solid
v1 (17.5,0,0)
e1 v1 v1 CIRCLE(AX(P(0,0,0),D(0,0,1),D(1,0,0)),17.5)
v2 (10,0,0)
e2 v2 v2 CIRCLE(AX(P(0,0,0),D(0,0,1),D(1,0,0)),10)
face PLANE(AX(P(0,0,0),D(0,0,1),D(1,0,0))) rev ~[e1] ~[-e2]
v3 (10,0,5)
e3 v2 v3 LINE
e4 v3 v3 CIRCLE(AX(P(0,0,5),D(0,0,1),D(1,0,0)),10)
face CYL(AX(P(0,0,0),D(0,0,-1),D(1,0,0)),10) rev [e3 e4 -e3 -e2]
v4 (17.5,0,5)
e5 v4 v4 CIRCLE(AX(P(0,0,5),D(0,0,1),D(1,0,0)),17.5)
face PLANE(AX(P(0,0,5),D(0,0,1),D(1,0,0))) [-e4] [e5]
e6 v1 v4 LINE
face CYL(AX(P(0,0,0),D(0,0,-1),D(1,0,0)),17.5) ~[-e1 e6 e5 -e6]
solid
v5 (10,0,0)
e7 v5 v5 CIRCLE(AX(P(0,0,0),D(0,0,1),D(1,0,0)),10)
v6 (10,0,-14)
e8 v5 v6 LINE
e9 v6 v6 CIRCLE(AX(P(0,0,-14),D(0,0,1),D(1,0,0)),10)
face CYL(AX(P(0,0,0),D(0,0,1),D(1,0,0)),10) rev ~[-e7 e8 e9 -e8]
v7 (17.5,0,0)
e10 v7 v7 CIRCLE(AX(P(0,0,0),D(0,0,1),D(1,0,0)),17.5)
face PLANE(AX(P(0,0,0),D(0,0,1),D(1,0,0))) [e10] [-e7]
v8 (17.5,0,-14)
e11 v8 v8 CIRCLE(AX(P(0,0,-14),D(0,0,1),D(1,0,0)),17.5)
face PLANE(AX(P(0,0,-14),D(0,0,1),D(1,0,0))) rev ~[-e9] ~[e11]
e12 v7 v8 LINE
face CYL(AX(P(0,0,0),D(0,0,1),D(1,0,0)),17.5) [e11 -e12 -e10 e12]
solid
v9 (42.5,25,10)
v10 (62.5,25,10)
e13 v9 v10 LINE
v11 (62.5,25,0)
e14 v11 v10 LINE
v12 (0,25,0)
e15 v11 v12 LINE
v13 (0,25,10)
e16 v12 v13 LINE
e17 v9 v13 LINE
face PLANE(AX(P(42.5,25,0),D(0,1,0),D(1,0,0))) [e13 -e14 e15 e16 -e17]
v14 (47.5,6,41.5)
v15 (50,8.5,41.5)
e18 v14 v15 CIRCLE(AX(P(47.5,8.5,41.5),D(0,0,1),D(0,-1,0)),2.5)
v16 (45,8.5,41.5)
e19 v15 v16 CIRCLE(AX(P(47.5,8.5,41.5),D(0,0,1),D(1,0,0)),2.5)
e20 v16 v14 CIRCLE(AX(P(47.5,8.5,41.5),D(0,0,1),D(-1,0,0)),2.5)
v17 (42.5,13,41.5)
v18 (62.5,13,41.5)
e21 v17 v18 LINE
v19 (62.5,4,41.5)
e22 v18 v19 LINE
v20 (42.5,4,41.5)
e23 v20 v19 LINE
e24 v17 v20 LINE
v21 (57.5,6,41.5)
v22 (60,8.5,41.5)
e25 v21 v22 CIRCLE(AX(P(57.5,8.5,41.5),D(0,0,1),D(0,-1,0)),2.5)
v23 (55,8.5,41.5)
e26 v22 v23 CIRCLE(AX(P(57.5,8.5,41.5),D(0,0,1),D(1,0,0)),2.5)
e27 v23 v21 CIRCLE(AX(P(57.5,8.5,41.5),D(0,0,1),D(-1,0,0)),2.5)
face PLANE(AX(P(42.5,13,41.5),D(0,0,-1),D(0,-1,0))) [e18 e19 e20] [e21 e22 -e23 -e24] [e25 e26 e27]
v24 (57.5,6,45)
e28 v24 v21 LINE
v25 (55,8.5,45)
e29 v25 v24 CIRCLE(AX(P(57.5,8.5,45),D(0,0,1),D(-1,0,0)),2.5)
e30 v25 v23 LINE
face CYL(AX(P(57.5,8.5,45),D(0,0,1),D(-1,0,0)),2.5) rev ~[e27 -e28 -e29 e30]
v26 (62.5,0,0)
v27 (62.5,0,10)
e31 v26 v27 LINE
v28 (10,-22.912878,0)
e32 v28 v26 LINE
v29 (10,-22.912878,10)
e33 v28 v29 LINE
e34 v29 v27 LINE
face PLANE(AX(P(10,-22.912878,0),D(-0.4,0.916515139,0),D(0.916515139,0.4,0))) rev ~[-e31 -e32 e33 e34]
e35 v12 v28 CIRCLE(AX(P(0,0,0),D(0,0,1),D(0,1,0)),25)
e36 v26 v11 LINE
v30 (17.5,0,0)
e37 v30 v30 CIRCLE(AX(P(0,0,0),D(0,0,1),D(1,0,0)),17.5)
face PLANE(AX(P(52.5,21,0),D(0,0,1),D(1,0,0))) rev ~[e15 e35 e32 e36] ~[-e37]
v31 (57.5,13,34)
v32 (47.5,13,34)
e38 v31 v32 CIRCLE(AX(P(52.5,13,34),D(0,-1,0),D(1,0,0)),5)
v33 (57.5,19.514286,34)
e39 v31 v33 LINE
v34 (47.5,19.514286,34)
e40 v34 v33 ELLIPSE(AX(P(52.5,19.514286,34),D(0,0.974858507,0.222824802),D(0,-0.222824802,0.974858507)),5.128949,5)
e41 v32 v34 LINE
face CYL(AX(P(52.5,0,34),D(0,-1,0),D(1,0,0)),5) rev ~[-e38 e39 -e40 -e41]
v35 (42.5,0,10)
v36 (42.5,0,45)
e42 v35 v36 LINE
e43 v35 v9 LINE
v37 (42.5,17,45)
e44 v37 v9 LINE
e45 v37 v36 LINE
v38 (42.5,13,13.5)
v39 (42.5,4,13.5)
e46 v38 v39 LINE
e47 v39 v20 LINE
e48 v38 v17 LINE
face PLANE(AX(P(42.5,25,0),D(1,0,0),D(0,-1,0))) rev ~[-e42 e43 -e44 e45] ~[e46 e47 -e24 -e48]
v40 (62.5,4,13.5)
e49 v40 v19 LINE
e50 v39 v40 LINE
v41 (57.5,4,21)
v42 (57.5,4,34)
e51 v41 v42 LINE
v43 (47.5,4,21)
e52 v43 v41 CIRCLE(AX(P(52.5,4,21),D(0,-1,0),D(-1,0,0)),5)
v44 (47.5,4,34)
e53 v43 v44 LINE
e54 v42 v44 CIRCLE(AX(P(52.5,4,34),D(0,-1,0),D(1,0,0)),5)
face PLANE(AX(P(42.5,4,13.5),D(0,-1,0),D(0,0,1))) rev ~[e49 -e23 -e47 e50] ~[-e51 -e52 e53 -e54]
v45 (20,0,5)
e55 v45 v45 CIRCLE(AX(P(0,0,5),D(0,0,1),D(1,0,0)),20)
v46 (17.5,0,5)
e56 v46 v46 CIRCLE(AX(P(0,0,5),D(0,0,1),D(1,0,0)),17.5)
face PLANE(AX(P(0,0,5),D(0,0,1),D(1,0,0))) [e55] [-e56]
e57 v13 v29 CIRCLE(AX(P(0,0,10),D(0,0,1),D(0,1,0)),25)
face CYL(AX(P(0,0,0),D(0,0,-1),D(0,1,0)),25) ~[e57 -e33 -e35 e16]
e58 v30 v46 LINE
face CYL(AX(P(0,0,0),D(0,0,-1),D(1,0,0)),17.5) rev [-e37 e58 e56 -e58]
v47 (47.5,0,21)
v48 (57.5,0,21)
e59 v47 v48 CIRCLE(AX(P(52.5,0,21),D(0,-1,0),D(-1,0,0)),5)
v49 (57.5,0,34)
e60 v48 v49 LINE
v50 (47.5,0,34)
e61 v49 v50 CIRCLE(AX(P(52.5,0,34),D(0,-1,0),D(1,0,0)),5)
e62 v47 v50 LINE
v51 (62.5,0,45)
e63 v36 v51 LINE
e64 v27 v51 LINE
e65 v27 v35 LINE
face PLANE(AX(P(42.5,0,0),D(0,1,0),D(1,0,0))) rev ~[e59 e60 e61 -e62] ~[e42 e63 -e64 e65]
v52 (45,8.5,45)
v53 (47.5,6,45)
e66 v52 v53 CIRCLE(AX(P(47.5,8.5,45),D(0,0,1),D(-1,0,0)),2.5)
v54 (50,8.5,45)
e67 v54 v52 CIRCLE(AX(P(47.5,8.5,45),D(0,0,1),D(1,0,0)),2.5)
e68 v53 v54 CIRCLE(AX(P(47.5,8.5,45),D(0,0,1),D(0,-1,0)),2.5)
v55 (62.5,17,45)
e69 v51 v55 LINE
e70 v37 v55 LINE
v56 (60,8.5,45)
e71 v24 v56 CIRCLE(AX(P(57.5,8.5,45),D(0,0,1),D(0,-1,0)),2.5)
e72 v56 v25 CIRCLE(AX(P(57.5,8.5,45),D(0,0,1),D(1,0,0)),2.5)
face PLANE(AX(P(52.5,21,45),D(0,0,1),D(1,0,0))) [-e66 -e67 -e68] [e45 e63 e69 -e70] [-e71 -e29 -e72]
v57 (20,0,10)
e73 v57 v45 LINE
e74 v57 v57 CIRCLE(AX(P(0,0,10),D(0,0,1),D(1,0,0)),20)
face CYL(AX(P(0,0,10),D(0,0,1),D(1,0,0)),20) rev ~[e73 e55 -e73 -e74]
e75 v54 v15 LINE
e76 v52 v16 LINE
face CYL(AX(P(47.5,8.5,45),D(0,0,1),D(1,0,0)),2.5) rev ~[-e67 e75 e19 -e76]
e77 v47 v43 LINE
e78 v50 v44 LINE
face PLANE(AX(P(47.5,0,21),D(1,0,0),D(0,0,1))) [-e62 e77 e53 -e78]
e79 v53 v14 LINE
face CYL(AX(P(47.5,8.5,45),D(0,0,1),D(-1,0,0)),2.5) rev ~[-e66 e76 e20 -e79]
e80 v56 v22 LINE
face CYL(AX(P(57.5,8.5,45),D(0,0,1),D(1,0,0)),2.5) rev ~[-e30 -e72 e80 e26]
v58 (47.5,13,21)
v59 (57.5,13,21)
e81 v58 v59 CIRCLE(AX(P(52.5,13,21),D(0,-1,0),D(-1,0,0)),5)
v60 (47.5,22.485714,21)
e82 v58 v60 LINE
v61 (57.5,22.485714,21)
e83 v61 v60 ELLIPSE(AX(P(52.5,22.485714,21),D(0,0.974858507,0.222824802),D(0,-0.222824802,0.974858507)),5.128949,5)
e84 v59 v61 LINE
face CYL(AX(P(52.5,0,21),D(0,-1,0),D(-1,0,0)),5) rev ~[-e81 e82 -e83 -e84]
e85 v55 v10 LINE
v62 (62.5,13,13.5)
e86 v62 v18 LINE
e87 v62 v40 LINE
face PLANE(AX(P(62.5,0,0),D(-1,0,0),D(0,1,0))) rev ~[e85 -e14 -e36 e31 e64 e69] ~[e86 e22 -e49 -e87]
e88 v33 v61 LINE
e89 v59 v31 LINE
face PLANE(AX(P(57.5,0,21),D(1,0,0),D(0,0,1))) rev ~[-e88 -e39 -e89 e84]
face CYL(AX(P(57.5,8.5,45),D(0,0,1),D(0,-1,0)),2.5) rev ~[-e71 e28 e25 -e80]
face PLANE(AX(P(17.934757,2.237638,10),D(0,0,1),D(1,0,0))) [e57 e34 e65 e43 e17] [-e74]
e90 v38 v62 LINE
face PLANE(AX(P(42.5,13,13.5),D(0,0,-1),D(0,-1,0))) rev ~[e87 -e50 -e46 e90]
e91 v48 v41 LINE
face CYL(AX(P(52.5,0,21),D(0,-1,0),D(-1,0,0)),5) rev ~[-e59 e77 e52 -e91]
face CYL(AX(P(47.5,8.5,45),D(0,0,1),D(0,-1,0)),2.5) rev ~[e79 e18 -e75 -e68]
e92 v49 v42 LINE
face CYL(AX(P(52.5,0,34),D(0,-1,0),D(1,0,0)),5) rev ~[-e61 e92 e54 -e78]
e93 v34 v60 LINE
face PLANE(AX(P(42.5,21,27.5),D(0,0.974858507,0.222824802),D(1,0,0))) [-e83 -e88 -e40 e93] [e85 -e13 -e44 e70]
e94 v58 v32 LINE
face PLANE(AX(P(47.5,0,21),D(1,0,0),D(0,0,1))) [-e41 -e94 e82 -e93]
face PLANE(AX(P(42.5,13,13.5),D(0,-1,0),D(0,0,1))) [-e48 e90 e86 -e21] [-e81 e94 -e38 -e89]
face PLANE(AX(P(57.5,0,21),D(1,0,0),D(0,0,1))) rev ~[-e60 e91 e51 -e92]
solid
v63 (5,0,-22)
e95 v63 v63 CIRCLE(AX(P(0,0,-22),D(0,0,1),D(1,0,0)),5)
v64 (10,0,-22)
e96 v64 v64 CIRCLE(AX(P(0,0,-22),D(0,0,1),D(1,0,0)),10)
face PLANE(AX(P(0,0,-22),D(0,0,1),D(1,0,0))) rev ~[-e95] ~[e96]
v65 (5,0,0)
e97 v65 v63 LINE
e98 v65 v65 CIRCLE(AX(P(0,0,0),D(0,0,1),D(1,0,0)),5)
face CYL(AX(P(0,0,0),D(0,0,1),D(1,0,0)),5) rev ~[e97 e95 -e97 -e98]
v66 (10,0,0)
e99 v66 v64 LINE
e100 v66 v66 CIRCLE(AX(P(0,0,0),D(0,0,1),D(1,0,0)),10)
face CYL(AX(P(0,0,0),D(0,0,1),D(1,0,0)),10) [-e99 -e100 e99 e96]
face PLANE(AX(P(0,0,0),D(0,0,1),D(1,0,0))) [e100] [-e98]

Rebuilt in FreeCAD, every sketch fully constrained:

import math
import FreeCAD as App
import Part
import Sketcher
Q = App.Units.Quantity


def edges_at(feature, points):
    """Names of the edges that pass closest to the given points."""
    edges = feature.Shape.Edges
    near = lambda p: min(range(len(edges)), key=lambda i: edges[i].distToShape(Part.Vertex(*p))[0])
    return sorted({f"Edge{near(p) + 1}" for p in points})


def add_polygon(sketch, points):
    """Adds a closed chain of lines whose ends are joined by coincident constraints."""
    first, n = sketch.GeometryCount, len(points)
    for a, b in zip(points, points[1:] + points[:1]):
        sketch.addGeometry(Part.LineSegment(App.Vector(*a, 0), App.Vector(*b, 0)), False)
    for i in range(n):
        sketch.addConstraint(Sketcher.Constraint("Coincident", first + i, 2, first + (i + 1) % n, 1))

doc = App.newDocument("Part")
body = doc.addObject("PartDesign::Body", "Body")

sketch1 = body.newObject("Sketcher::SketchObject", "Sketch")
sketch1.AttachmentSupport = (doc.getObject("XY_Plane"), [""])
sketch1.MapMode = "FlatFace"
sketch1.addGeometry([
    Part.LineSegment(App.Vector(42, 25, 0), App.Vector(0, 25, 0)),
    Part.ArcOfCircle(Part.Circle(App.Vector(0, 0, 0), App.Vector(0, 0, 1), 25), math.radians(90), math.radians(294)),
    Part.LineSegment(App.Vector(10, -23, 0), App.Vector(62, 0, 0)),
    Part.LineSegment(App.Vector(62, 0, 0), App.Vector(42, 0, 0)),
    Part.LineSegment(App.Vector(42, 0, 0), App.Vector(42, 25, 0)),
    Part.Circle(App.Vector(0, 0, 0), App.Vector(0, 0, 1), 18),
], False)
sketch1.addConstraint([
    Sketcher.Constraint("Tangent", 0, 2, 1, 1),
    Sketcher.Constraint("Tangent", 1, 2, 2, 1),
    Sketcher.Constraint("Coincident", 2, 2, 3, 1),
    Sketcher.Constraint("Coincident", 3, 2, 4, 1),
    Sketcher.Constraint("Coincident", 4, 2, 0, 1),
    Sketcher.Constraint("Horizontal", 0),
    Sketcher.Constraint("Horizontal", 3),
    Sketcher.Constraint("Vertical", 4),
    Sketcher.Constraint("Coincident", 1, 3, -1, 1),
    Sketcher.Constraint("Coincident", 5, 3, -1, 1),
    Sketcher.Constraint("PointOnObject", 2, 2, -1),
    Sketcher.Constraint("Diameter", 5, Q("35 mm")),
    Sketcher.Constraint("Radius", 1, Q("25 mm")),
    Sketcher.Constraint("DistanceX", 3, 2, 3, 1, Q("20 mm")),
    Sketcher.Constraint("DistanceX", 0, 2, 0, 1, Q("42.5 mm")),
])
pad1 = body.newObject("PartDesign::Pad", "Pad")
pad1.Profile = sketch1
pad1.Length = 10

sketch2 = body.newObject("Sketcher::SketchObject", "Sketch001")
sketch2.AttachmentSupport = (doc.getObject("XY_Plane"), [""])
sketch2.MapMode = "FlatFace"
add_polygon(sketch2, [(42, 25), (42, 0), (62, 0), (62, 25)])
sketch2.addConstraint([
    Sketcher.Constraint("Vertical", 0),
    Sketcher.Constraint("Horizontal", 1),
    Sketcher.Constraint("Vertical", 2),
    Sketcher.Constraint("Horizontal", 3),
    Sketcher.Constraint("PointOnObject", 0, 2, -1),
    Sketcher.Constraint("DistanceX", 1, 1, 1, 2, Q("20 mm")),
    Sketcher.Constraint("DistanceY", 0, 2, 0, 1, Q("25 mm")),
    Sketcher.Constraint("DistanceX", -1, 1, 0, 2, Q("42.5 mm")),
])
pad2 = body.newObject("PartDesign::Pad", "Pad001")
pad2.Profile = sketch2
pad2.Length = 45
doc.recompute()

chamfer = body.newObject("PartDesign::Chamfer", "Chamfer")
chamfer.Base = (pad2, edges_at(pad2, [(52.5, 25, 45)]))
chamfer.ChamferType = "Two distances"
chamfer.Size = 8
chamfer.Size2 = 35

sketch3 = body.newObject("Sketcher::SketchObject", "Sketch002")
sketch3.AttachmentSupport = (doc.getObject("YZ_Plane"), [""])
sketch3.MapMode = "FlatFace"
sketch3.AttachmentOffset = App.Placement(App.Vector(0, 0, 42.5), App.Rotation())
add_polygon(sketch3, [(13, 42), (13, 14), (4, 14), (4, 42)])
sketch3.addConstraint([
    Sketcher.Constraint("Vertical", 0),
    Sketcher.Constraint("Horizontal", 1),
    Sketcher.Constraint("Vertical", 2),
    Sketcher.Constraint("Horizontal", 3),
    Sketcher.Constraint("DistanceX", 1, 2, 1, 1, Q("9 mm")),
    Sketcher.Constraint("DistanceY", 0, 2, 0, 1, Q("28 mm")),
    Sketcher.Constraint("DistanceX", -1, 1, 0, 2, Q("13 mm")),
    Sketcher.Constraint("DistanceY", -1, 1, 0, 2, Q("13.5 mm")),
])
pocket1 = body.newObject("PartDesign::Pocket", "Pocket")
pocket1.Profile = sketch3
pocket1.Length = 30
pocket1.Reversed = True

sketch4 = body.newObject("Sketcher::SketchObject", "Sketch003")
sketch4.AttachmentSupport = (doc.getObject("XZ_Plane"), [""])
sketch4.MapMode = "FlatFace"
sketch4.addGeometry([
    Part.ArcOfCircle(Part.Circle(App.Vector(52, 34, 0), App.Vector(0, 0, 1), 5), math.radians(0), math.radians(180)),
    Part.LineSegment(App.Vector(48, 34, 0), App.Vector(48, 21, 0)),
    Part.ArcOfCircle(Part.Circle(App.Vector(52, 21, 0), App.Vector(0, 0, 1), 5), math.radians(180), math.radians(360)),
    Part.LineSegment(App.Vector(58, 21, 0), App.Vector(58, 34, 0)),
], False)
sketch4.addConstraint([
    Sketcher.Constraint("Tangent", 0, 2, 1, 1),
    Sketcher.Constraint("Tangent", 1, 2, 2, 1),
    Sketcher.Constraint("Tangent", 2, 2, 3, 1),
    Sketcher.Constraint("Tangent", 3, 2, 0, 1),
    Sketcher.Constraint("Vertical", 1),
    Sketcher.Constraint("Vertical", 3),
    Sketcher.Constraint("Radius", 0, Q("5 mm")),
    Sketcher.Constraint("DistanceY", 1, 2, 1, 1, Q("13 mm")),
    Sketcher.Constraint("DistanceY", -1, 1, 0, 3, Q("34 mm")),
    Sketcher.Constraint("DistanceX", -1, 1, 0, 3, Q("52.5 mm")),
])
pocket2 = body.newObject("PartDesign::Pocket", "Pocket001")
pocket2.Profile = sketch4
pocket2.Length = 26

sketch5 = body.newObject("Sketcher::SketchObject", "Sketch004")
sketch5.AttachmentSupport = (doc.getObject("XY_Plane"), [""])
sketch5.MapMode = "FlatFace"
sketch5.AttachmentOffset = App.Placement(App.Vector(0, 0, 45), App.Rotation())
sketch5.addGeometry([
    Part.ArcOfCircle(Part.Circle(App.Vector(47.5, 8.5, 0), App.Vector(0, 0, 1), 2.5), math.radians(0), math.radians(180)),
    Part.ArcOfCircle(Part.Circle(App.Vector(47.5, 8.5, 0), App.Vector(0, 0, 1), 2.5), math.radians(180), math.radians(270)),
    Part.ArcOfCircle(Part.Circle(App.Vector(47.5, 8.5, 0), App.Vector(0, 0, 1), 2.5), math.radians(-90), math.radians(0)),
    Part.ArcOfCircle(Part.Circle(App.Vector(57.5, 8.5, 0), App.Vector(0, 0, 1), 2.5), math.radians(0), math.radians(180)),
    Part.ArcOfCircle(Part.Circle(App.Vector(57.5, 8.5, 0), App.Vector(0, 0, 1), 2.5), math.radians(180), math.radians(270)),
    Part.ArcOfCircle(Part.Circle(App.Vector(57.5, 8.5, 0), App.Vector(0, 0, 1), 2.5), math.radians(-90), math.radians(0)),
], False)
sketch5.addConstraint([
    Sketcher.Constraint("Tangent", 0, 2, 1, 1),
    Sketcher.Constraint("Tangent", 1, 2, 2, 1),
    Sketcher.Constraint("Tangent", 2, 2, 0, 1),
    Sketcher.Constraint("Tangent", 3, 2, 4, 1),
    Sketcher.Constraint("Tangent", 4, 2, 5, 1),
    Sketcher.Constraint("Tangent", 5, 2, 3, 1),
    Sketcher.Constraint("Equal", 2, 3),
    Sketcher.Constraint("Horizontal", 2, 3, 3, 3),
    Sketcher.Constraint("Horizontal", 5, 3, 0, 2),
    Sketcher.Constraint("Horizontal", 0, 2, 2, 2),
    Sketcher.Constraint("Horizontal", 2, 2, 3, 2),
    Sketcher.Constraint("Horizontal", 3, 2, 5, 2),
    Sketcher.Constraint("Vertical", 2, 3, 1, 2),
    Sketcher.Constraint("Vertical", 5, 3, 4, 2),
    Sketcher.Constraint("Radius", 0, Q("2.5 mm")),
    Sketcher.Constraint("DistanceX", -1, 1, 0, 2, Q("45 mm")),
    Sketcher.Constraint("DistanceY", -1, 1, 1, 2, Q("6 mm")),
    Sketcher.Constraint("DistanceX", -1, 1, 3, 2, Q("55 mm")),
])
pocket3 = body.newObject("PartDesign::Pocket", "Pocket002")
pocket3.Profile = sketch5
pocket3.Length = 25

sketch6 = body.newObject("Sketcher::SketchObject", "Sketch005")
sketch6.AttachmentSupport = (doc.getObject("XY_Plane"), [""])
sketch6.MapMode = "FlatFace"
sketch6.AttachmentOffset = App.Placement(App.Vector(0, 0, 10), App.Rotation())
sketch6.addGeometry([
    Part.Circle(App.Vector(0, 0, 0), App.Vector(0, 0, 1), 20),
    Part.Circle(App.Vector(0, 0, 0), App.Vector(0, 0, 1), 18),
], False)
sketch6.addConstraint([
    Sketcher.Constraint("Coincident", 0, 3, -1, 1),
    Sketcher.Constraint("Coincident", 1, 3, -1, 1),
    Sketcher.Constraint("Diameter", 0, Q("40 mm")),
    Sketcher.Constraint("Diameter", 1, Q("35 mm")),
])
pocket4 = body.newObject("PartDesign::Pocket", "Pocket003")
pocket4.Profile = sketch6
pocket4.Length = 5
body2 = doc.addObject("PartDesign::Body", "Body001")

sketch7 = body2.newObject("Sketcher::SketchObject", "Sketch006")
sketch7.AttachmentSupport = (doc.getObject("XY_Plane001"), [""])
sketch7.MapMode = "FlatFace"
sketch7.addGeometry([
    Part.Circle(App.Vector(0, 0, 0), App.Vector(0, 0, 1), 10),
    Part.Circle(App.Vector(0, 0, 0), App.Vector(0, 0, 1), 5),
], False)
sketch7.addConstraint([
    Sketcher.Constraint("Coincident", 0, 3, -1, 1),
    Sketcher.Constraint("Coincident", 1, 3, -1, 1),
    Sketcher.Constraint("Diameter", 0, Q("20 mm")),
    Sketcher.Constraint("Diameter", 1, Q("10 mm")),
])
pad3 = body2.newObject("PartDesign::Pad", "Pad002")
pad3.Profile = sketch7
pad3.Length = 22
pad3.Reversed = True
body3 = doc.addObject("PartDesign::Body", "Body002")

sketch8 = body3.newObject("Sketcher::SketchObject", "Sketch007")
sketch8.AttachmentSupport = (doc.getObject("XY_Plane002"), [""])
sketch8.MapMode = "FlatFace"
sketch8.addGeometry([
    Part.Circle(App.Vector(0, 0, 0), App.Vector(0, 0, 1), 18),
    Part.Circle(App.Vector(0, 0, 0), App.Vector(0, 0, 1), 10),
], False)
sketch8.addConstraint([
    Sketcher.Constraint("Coincident", 0, 3, -1, 1),
    Sketcher.Constraint("Coincident", 1, 3, -1, 1),
    Sketcher.Constraint("Diameter", 0, Q("35 mm")),
    Sketcher.Constraint("Diameter", 1, Q("20 mm")),
])
pad4 = body3.newObject("PartDesign::Pad", "Pad003")
pad4.Profile = sketch8
pad4.Length = 14
pad4.Reversed = True
body4 = doc.addObject("PartDesign::Body", "Body003")

sketch9 = body4.newObject("Sketcher::SketchObject", "Sketch008")
sketch9.AttachmentSupport = (doc.getObject("XY_Plane003"), [""])
sketch9.MapMode = "FlatFace"
sketch9.addGeometry([
    Part.Circle(App.Vector(0, 0, 0), App.Vector(0, 0, 1), 18),
    Part.Circle(App.Vector(0, 0, 0), App.Vector(0, 0, 1), 10),
], False)
sketch9.addConstraint([
    Sketcher.Constraint("Coincident", 0, 3, -1, 1),
    Sketcher.Constraint("Coincident", 1, 3, -1, 1),
    Sketcher.Constraint("Diameter", 0, Q("35 mm")),
    Sketcher.Constraint("Diameter", 1, Q("20 mm")),
])
pad5 = body4.newObject("PartDesign::Pad", "Pad004")
pad5.Profile = sketch9
pad5.Length = 5

doc.recompute()
